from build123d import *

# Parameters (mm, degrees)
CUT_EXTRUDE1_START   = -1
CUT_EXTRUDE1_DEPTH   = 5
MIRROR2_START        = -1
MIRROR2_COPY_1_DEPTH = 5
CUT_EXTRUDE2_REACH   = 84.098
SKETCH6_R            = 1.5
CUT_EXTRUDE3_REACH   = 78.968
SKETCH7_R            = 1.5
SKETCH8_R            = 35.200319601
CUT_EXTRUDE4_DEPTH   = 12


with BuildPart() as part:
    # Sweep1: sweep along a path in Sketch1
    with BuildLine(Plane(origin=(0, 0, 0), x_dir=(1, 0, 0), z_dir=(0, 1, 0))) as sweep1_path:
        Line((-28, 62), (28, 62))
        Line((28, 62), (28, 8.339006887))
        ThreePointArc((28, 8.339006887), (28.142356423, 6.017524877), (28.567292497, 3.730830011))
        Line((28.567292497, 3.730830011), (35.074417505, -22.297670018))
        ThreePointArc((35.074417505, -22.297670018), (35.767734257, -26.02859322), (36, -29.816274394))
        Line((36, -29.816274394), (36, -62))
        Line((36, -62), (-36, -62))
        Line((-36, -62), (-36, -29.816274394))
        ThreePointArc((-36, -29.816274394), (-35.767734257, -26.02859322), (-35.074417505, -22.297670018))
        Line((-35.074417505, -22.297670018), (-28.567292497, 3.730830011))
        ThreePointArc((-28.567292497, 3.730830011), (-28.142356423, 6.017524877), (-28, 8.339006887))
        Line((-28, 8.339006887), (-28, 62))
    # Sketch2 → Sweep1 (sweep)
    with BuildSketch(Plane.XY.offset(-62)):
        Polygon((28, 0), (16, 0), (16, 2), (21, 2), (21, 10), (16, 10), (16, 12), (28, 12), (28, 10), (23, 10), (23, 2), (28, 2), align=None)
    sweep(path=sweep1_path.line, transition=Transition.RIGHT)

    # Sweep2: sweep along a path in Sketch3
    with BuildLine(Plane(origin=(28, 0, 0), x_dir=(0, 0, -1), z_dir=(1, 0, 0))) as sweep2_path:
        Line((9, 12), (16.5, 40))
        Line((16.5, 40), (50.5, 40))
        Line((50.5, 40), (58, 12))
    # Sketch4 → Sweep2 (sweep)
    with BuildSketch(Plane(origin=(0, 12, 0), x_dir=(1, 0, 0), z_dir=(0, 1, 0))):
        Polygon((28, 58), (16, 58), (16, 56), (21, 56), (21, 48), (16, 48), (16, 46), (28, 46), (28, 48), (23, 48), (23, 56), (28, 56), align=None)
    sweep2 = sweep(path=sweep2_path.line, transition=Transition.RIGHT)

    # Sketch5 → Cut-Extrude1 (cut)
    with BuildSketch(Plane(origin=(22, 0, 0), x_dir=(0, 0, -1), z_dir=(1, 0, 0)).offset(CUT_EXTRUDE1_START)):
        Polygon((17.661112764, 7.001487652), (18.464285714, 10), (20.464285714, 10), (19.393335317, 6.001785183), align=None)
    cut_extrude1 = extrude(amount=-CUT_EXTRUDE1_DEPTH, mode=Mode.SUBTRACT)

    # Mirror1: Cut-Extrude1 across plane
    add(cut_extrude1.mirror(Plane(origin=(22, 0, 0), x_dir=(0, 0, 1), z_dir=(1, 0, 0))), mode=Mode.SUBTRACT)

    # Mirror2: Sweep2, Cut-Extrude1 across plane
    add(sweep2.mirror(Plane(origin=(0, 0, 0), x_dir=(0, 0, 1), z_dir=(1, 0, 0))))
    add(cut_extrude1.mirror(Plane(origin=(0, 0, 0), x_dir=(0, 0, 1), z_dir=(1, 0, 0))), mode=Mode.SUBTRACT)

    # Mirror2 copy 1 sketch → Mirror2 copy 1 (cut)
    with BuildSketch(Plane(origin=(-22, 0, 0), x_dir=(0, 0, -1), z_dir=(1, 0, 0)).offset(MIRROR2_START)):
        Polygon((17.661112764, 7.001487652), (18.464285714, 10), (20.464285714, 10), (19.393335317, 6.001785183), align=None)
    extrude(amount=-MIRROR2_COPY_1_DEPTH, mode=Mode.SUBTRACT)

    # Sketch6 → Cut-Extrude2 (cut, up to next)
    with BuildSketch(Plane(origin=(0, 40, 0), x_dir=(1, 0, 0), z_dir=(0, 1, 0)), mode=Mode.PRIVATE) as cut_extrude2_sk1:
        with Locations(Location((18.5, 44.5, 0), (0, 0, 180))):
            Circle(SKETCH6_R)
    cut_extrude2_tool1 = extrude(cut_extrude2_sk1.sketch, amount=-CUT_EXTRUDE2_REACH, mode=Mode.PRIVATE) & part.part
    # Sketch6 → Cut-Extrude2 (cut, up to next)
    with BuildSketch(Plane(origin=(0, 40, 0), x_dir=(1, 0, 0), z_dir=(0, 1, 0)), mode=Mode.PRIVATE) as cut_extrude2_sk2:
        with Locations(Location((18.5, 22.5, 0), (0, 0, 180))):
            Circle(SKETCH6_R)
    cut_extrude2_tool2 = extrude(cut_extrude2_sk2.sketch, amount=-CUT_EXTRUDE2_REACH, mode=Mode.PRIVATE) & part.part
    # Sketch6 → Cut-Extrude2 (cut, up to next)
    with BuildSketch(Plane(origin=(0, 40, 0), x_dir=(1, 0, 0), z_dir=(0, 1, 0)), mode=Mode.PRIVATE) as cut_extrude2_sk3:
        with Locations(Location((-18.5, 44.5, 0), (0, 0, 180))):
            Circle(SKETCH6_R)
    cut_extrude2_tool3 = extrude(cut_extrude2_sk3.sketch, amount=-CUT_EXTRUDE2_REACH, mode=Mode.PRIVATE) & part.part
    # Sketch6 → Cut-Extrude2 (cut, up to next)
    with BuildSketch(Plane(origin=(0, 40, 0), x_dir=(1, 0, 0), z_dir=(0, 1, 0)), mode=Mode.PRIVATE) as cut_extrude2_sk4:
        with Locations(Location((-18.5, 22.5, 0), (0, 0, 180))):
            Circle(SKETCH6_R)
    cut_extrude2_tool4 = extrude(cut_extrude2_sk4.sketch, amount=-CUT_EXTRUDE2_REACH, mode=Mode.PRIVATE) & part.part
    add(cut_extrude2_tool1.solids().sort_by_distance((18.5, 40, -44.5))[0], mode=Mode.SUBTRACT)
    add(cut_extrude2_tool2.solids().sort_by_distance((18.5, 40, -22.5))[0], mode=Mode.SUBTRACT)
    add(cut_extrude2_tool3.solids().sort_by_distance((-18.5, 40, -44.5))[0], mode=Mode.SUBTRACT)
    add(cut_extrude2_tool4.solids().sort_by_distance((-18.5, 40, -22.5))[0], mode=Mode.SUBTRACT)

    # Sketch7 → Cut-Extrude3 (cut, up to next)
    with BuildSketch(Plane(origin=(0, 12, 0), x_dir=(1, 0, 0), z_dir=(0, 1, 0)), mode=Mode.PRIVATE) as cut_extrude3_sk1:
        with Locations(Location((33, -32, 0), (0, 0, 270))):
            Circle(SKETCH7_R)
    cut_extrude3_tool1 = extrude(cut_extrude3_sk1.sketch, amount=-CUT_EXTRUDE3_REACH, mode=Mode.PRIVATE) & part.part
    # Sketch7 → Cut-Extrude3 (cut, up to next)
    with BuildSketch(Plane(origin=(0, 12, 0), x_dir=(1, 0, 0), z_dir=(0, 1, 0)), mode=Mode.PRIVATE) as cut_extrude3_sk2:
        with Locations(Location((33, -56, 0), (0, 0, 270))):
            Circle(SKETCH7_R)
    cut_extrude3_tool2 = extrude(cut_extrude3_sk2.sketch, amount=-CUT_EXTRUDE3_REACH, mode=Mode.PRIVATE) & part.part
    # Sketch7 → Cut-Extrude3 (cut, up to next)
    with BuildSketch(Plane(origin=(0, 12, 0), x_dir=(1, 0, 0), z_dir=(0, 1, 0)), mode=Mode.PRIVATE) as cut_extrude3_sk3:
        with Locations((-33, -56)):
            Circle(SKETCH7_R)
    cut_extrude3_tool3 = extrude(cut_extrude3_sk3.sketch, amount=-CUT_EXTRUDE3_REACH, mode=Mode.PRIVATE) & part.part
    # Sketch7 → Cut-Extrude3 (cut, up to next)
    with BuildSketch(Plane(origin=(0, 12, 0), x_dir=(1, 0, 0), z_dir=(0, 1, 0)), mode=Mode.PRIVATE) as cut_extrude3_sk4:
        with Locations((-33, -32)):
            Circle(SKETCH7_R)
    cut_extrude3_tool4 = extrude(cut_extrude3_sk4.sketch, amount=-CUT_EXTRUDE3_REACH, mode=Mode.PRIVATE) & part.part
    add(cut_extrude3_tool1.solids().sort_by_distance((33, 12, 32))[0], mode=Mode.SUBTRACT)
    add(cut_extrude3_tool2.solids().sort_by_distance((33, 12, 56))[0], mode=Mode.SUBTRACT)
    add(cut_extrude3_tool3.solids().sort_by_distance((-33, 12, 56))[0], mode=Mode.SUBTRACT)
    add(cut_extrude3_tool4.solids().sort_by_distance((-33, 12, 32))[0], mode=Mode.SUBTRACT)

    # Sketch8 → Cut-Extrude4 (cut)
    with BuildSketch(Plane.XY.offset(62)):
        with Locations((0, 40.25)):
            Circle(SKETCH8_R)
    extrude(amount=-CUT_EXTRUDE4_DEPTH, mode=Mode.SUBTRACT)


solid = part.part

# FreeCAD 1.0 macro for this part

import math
import FreeCAD as App
import Part
import Sketcher
Q = App.Units.Quantity

doc = App.newDocument("Part")
body = doc.addObject("PartDesign::Body", "Body")

sketch1 = body.newObject("Sketcher::SketchObject", "Sketch")
sketch1.AttachmentSupport = (doc.getObject("XY_Plane"), [""])
sketch1.MapMode = "FlatFace"
sketch1.AttachmentOffset = App.Placement(App.Vector(0, 0, -62), App.Rotation())
sketch1.addGeometry([
    Part.LineSegment(App.Vector(16, 0, 0), App.Vector(28, 0, 0)),
    Part.LineSegment(App.Vector(28, 0, 0), App.Vector(28, 2, 0)),
    Part.LineSegment(App.Vector(28, 2, 0), App.Vector(23, 2, 0)),
    Part.LineSegment(App.Vector(23, 2, 0), App.Vector(23, 10, 0)),
    Part.LineSegment(App.Vector(23, 10, 0), App.Vector(28, 10, 0)),
    Part.LineSegment(App.Vector(28, 10, 0), App.Vector(28, 12, 0)),
    Part.LineSegment(App.Vector(28, 12, 0), App.Vector(16, 12, 0)),
    Part.LineSegment(App.Vector(16, 12, 0), App.Vector(16, 10, 0)),
    Part.LineSegment(App.Vector(16, 10, 0), App.Vector(21, 10, 0)),
    Part.LineSegment(App.Vector(21, 10, 0), App.Vector(21, 2, 0)),
    Part.LineSegment(App.Vector(21, 2, 0), App.Vector(16, 2, 0)),
    Part.LineSegment(App.Vector(16, 2, 0), App.Vector(16, 0, 0)),
], False)
sketch1.addConstraint([
    Sketcher.Constraint("Coincident", 0, 2, 1, 1),
    Sketcher.Constraint("Coincident", 1, 2, 2, 1),
    Sketcher.Constraint("Coincident", 2, 2, 3, 1),
    Sketcher.Constraint("Coincident", 3, 2, 4, 1),
    Sketcher.Constraint("Coincident", 4, 2, 5, 1),
    Sketcher.Constraint("Coincident", 5, 2, 6, 1),
    Sketcher.Constraint("Coincident", 6, 2, 7, 1),
    Sketcher.Constraint("Coincident", 7, 2, 8, 1),
    Sketcher.Constraint("Coincident", 8, 2, 9, 1),
    Sketcher.Constraint("Coincident", 9, 2, 10, 1),
    Sketcher.Constraint("Coincident", 10, 2, 11, 1),
    Sketcher.Constraint("Coincident", 11, 2, 0, 1),
    Sketcher.Constraint("Horizontal", 0),
    Sketcher.Constraint("Vertical", 1),
    Sketcher.Constraint("Horizontal", 2),
    Sketcher.Constraint("Vertical", 3),
    Sketcher.Constraint("Horizontal", 4),
    Sketcher.Constraint("Vertical", 5),
    Sketcher.Constraint("Horizontal", 6),
    Sketcher.Constraint("Vertical", 7),
    Sketcher.Constraint("Horizontal", 8),
    Sketcher.Constraint("Vertical", 9),
    Sketcher.Constraint("Horizontal", 10),
    Sketcher.Constraint("Vertical", 11),
    Sketcher.Constraint("PointOnObject", 0, 2, -1),
    Sketcher.Constraint("Horizontal", 4, 2, 7, 2),
    Sketcher.Constraint("Horizontal", 2, 2, 9, 2),
    Sketcher.Constraint("Vertical", 1, 2, 4, 2),
    Sketcher.Constraint("Vertical", 7, 2, 10, 2),
    Sketcher.Constraint("Equal", 4, 8),
    Sketcher.Constraint("Equal", 1, 5),
    Sketcher.Constraint("DistanceX", 0, 1, 0, 2, Q("12 mm")),
    Sketcher.Constraint("DistanceX", 2, 2, 2, 1, Q("5 mm")),
    Sketcher.Constraint("DistanceY", 1, 1, 1, 2, Q("2 mm")),
    Sketcher.Constraint("DistanceY", 3, 1, 3, 2, Q("8 mm")),
    Sketcher.Constraint("DistanceX", -1, 1, 0, 2, Q("28 mm")),
])

sketch2 = body.newObject("Sketcher::SketchObject", "Sketch001")
sketch2.AttachmentSupport = (doc.getObject("XZ_Plane"), [""])
sketch2.MapMode = "FlatFace"
sketch2.addGeometry([
    Part.LineSegment(App.Vector(-28, -62, 0), App.Vector(28, -62, 0)),
    Part.LineSegment(App.Vector(28, -62, 0), App.Vector(28, -8.3, 0)),
    Part.ArcOfCircle(Part.Circle(App.Vector(47, -8.3, 0), App.Vector(0, 0, 1), 19), math.radians(165.96), math.radians(180)),
    Part.LineSegment(App.Vector(28.6, -3.7, 0), App.Vector(35.1, 22.3, 0)),
    Part.ArcOfCircle(Part.Circle(App.Vector(5, 29.8, 0), App.Vector(0, 0, 1), 31), math.radians(-14.04), math.radians(0)),
    Part.LineSegment(App.Vector(36, 29.8, 0), App.Vector(36, 62, 0)),
    Part.LineSegment(App.Vector(36, 62, 0), App.Vector(-36, 62, 0)),
    Part.LineSegment(App.Vector(-36, 62, 0), App.Vector(-36, 29.8, 0)),
    Part.ArcOfCircle(Part.Circle(App.Vector(-5, 29.8, 0), App.Vector(0, 0, 1), 31), math.radians(-180), math.radians(-165.96)),
    Part.LineSegment(App.Vector(-35.1, 22.3, 0), App.Vector(-28.6, -3.7, 0)),
    Part.ArcOfCircle(Part.Circle(App.Vector(-47, -8.3, 0), App.Vector(0, 0, 1), 19), math.radians(0), math.radians(14.04)),
    Part.LineSegment(App.Vector(-28, -8.3, 0), App.Vector(-28, -62, 0)),
], False)
sketch2.addConstraint([
    Sketcher.Constraint("Coincident", 0, 2, 1, 1),
    Sketcher.Constraint("Tangent", 1, 2, 2, 2),
    Sketcher.Constraint("Tangent", 2, 1, 3, 1),
    Sketcher.Constraint("Tangent", 3, 2, 4, 1),
    Sketcher.Constraint("Tangent", 4, 2, 5, 1),
    Sketcher.Constraint("Coincident", 5, 2, 6, 1),
    Sketcher.Constraint("Coincident", 6, 2, 7, 1),
    Sketcher.Constraint("Tangent", 7, 2, 8, 1),
    Sketcher.Constraint("Tangent", 8, 2, 9, 1),
    Sketcher.Constraint("Tangent", 9, 2, 10, 2),
    Sketcher.Constraint("Tangent", 10, 1, 11, 1),
    Sketcher.Constraint("Coincident", 11, 2, 0, 1),
    Sketcher.Constraint("Horizontal", 0),
    Sketcher.Constraint("Vertical", 1),
    Sketcher.Constraint("Vertical", 5),
    Sketcher.Constraint("Horizontal", 6),
    Sketcher.Constraint("Vertical", 7),
    Sketcher.Constraint("Vertical", 11),
    Sketcher.Constraint("Equal", 4, 8),
    Sketcher.Constraint("Equal", 2, 10),
    Sketcher.Constraint("Symmetric", 4, 3, 8, 3, -2),
    Sketcher.Constraint("Symmetric", 2, 3, 10, 3, -2),
    Sketcher.Constraint("Radius", 2, Q("19 mm")),
    Sketcher.Constraint("Radius", 4, Q("31 mm")),
    Sketcher.Constraint("DistanceX", 0, 1, 0, 2, Q("56 mm")),
    Sketcher.Constraint("DistanceX", 6, 2, 6, 1, Q("72 mm")),
    Sketcher.Constraint("DistanceY", 0, 2, -1, 1, Q("62 mm")),
    Sketcher.Constraint("DistanceY", -1, 1, 5, 2, Q("62 mm")),
    Sketcher.Constraint("DistanceY", 2, 1, 3, 2, Q("26.0285 mm")),
    Sketcher.Constraint("DistanceY", 1, 1, 1, 2, Q("53.660993 mm")),
])
doc.recompute()

additivepipe = body.newObject("PartDesign::AdditivePipe", "AdditivePipe")
additivepipe.Profile = sketch1
additivepipe.Spine = (sketch2, ["Edge1", "Edge2", "Edge3", "Edge4", "Edge5", "Edge6", "Edge7", "Edge8", "Edge9", "Edge10", "Edge11", "Edge12"])
additivepipe.Transition = "Right corner"

sketch3 = body.newObject("Sketcher::SketchObject", "Sketch002")
sketch3.AttachmentSupport = (doc.getObject("XZ_Plane"), [""])
sketch3.MapMode = "FlatFace"
sketch3.AttachmentOffset = App.Placement(App.Vector(0, 0, -12), App.Rotation())
sketch3.addGeometry([
    Part.LineSegment(App.Vector(28, -58, 0), App.Vector(16, -58, 0)),
    Part.LineSegment(App.Vector(16, -58, 0), App.Vector(16, -56, 0)),
    Part.LineSegment(App.Vector(16, -56, 0), App.Vector(21, -56, 0)),
    Part.LineSegment(App.Vector(21, -56, 0), App.Vector(21, -48, 0)),
    Part.LineSegment(App.Vector(21, -48, 0), App.Vector(16, -48, 0)),
    Part.LineSegment(App.Vector(16, -48, 0), App.Vector(16, -46, 0)),
    Part.LineSegment(App.Vector(16, -46, 0), App.Vector(28, -46, 0)),
    Part.LineSegment(App.Vector(28, -46, 0), App.Vector(28, -48, 0)),
    Part.LineSegment(App.Vector(28, -48, 0), App.Vector(23, -48, 0)),
    Part.LineSegment(App.Vector(23, -48, 0), App.Vector(23, -56, 0)),
    Part.LineSegment(App.Vector(23, -56, 0), App.Vector(28, -56, 0)),
    Part.LineSegment(App.Vector(28, -56, 0), App.Vector(28, -58, 0)),
], False)
sketch3.addConstraint([
    Sketcher.Constraint("Coincident", 0, 2, 1, 1),
    Sketcher.Constraint("Coincident", 1, 2, 2, 1),
    Sketcher.Constraint("Coincident", 2, 2, 3, 1),
    Sketcher.Constraint("Coincident", 3, 2, 4, 1),
    Sketcher.Constraint("Coincident", 4, 2, 5, 1),
    Sketcher.Constraint("Coincident", 5, 2, 6, 1),
    Sketcher.Constraint("Coincident", 6, 2, 7, 1),
    Sketcher.Constraint("Coincident", 7, 2, 8, 1),
    Sketcher.Constraint("Coincident", 8, 2, 9, 1),
    Sketcher.Constraint("Coincident", 9, 2, 10, 1),
    Sketcher.Constraint("Coincident", 10, 2, 11, 1),
    Sketcher.Constraint("Coincident", 11, 2, 0, 1),
    Sketcher.Constraint("Horizontal", 0),
    Sketcher.Constraint("Vertical", 1),
    Sketcher.Constraint("Horizontal", 2),
    Sketcher.Constraint("Vertical", 3),
    Sketcher.Constraint("Horizontal", 4),
    Sketcher.Constraint("Vertical", 5),
    Sketcher.Constraint("Horizontal", 6),
    Sketcher.Constraint("Vertical", 7),
    Sketcher.Constraint("Horizontal", 8),
    Sketcher.Constraint("Vertical", 9),
    Sketcher.Constraint("Horizontal", 10),
    Sketcher.Constraint("Vertical", 11),
    Sketcher.Constraint("Horizontal", 4, 2, 7, 2),
    Sketcher.Constraint("Horizontal", 2, 2, 9, 2),
    Sketcher.Constraint("Vertical", 1, 2, 4, 2),
    Sketcher.Constraint("Vertical", 7, 2, 10, 2),
    Sketcher.Constraint("Equal", 4, 8),
    Sketcher.Constraint("Equal", 1, 5),
    Sketcher.Constraint("DistanceX", 0, 2, 0, 1, Q("12 mm")),
    Sketcher.Constraint("DistanceX", 2, 1, 2, 2, Q("5 mm")),
    Sketcher.Constraint("DistanceY", 1, 1, 1, 2, Q("2 mm")),
    Sketcher.Constraint("DistanceY", 3, 1, 3, 2, Q("8 mm")),
    Sketcher.Constraint("DistanceX", -1, 1, 0, 2, Q("16 mm")),
    Sketcher.Constraint("DistanceY", 0, 2, -1, 1, Q("58 mm")),
])

sketch4 = body.newObject("Sketcher::SketchObject", "Sketch003")
sketch4.AttachmentSupport = (doc.getObject("YZ_Plane"), [""])
sketch4.MapMode = "FlatFace"
sketch4.AttachmentOffset = App.Placement(App.Vector(0, 0, 28), App.Rotation())
sketch4.addGeometry([
    Part.LineSegment(App.Vector(12, -9, 0), App.Vector(40, -16, 0)),
    Part.LineSegment(App.Vector(40, -16, 0), App.Vector(40, -50, 0)),
    Part.LineSegment(App.Vector(40, -50, 0), App.Vector(12, -58, 0)),
], False)
sketch4.addConstraint([
    Sketcher.Constraint("Coincident", 0, 2, 1, 1),
    Sketcher.Constraint("Coincident", 1, 2, 2, 1),
    Sketcher.Constraint("Vertical", 1),
    Sketcher.Constraint("Vertical", 0, 1, 2, 2),
    Sketcher.Constraint("Equal", 0, 2),
    Sketcher.Constraint("DistanceY", 1, 2, 1, 1, Q("34 mm")),
    Sketcher.Constraint("DistanceX", -1, 1, 0, 1, Q("12 mm")),
    Sketcher.Constraint("DistanceY", 0, 1, -1, 1, Q("9 mm")),
    Sketcher.Constraint("DistanceX", -1, 1, 0, 2, Q("40 mm")),
    Sketcher.Constraint("DistanceY", 2, 2, -1, 1, Q("58 mm")),
])
doc.recompute()

additivepipe2 = body.newObject("PartDesign::AdditivePipe", "AdditivePipe001")
additivepipe2.Profile = sketch3
additivepipe2.Spine = (sketch4, ["Edge1", "Edge2", "Edge3"])
additivepipe2.Transition = "Right corner"

sketch5 = body.newObject("Sketcher::SketchObject", "Sketch004")
sketch5.AttachmentSupport = (doc.getObject("YZ_Plane"), [""])
sketch5.MapMode = "FlatFace"
sketch5.AttachmentOffset = App.Placement(App.Vector(0, 0, 21), App.Rotation())
sketch5.addGeometry([
    Part.LineSegment(App.Vector(10, -18.5, 0), App.Vector(7, -17.7, 0)),
    Part.LineSegment(App.Vector(7, -17.7, 0), App.Vector(6, -19.4, 0)),
    Part.LineSegment(App.Vector(6, -19.4, 0), App.Vector(10, -20.5, 0)),
    Part.LineSegment(App.Vector(10, -20.5, 0), App.Vector(10, -18.5, 0)),
], False)
sketch5.addConstraint([
    Sketcher.Constraint("Coincident", 0, 2, 1, 1),
    Sketcher.Constraint("Coincident", 1, 2, 2, 1),
    Sketcher.Constraint("Coincident", 2, 2, 3, 1),
    Sketcher.Constraint("Coincident", 3, 2, 0, 1),
    Sketcher.Constraint("Vertical", 3),
    Sketcher.Constraint("Parallel", 0, 2),
    Sketcher.Constraint("DistanceY", 3, 1, 3, 2, Q("2 mm")),
    Sketcher.Constraint("Distance", 1, Q("2 mm")),
    Sketcher.Constraint("DistanceX", -1, 1, 2, 2, Q("10 mm")),
    Sketcher.Constraint("Distance", 2, Q("4.139161 mm")),
    Sketcher.Constraint("DistanceY", 2, 2, 1, 2, Q("1.07095 mm")),
    Sketcher.Constraint("DistanceY", 0, 2, -1, 1, Q("17.661113 mm")),
])
pocket1 = body.newObject("PartDesign::Pocket", "Pocket")
pocket1.Profile = sketch5
pocket1.Length = 5
doc.recompute()

datumplane = body.newObject("PartDesign::Plane", "DatumPlane")
datumplane.AttachmentSupport = (doc.getObject("YZ_Plane"), [""])
datumplane.MapMode = "FlatFace"
datumplane.AttachmentOffset = App.Placement(App.Vector(0, 0, 22), App.Rotation())
mirrored = body.newObject("PartDesign::Mirrored", "Mirrored")
mirrored.Originals = [pocket1]
mirrored.MirrorPlane = (datumplane, [""])
body.Tip = mirrored
doc.recompute()

mirrored2 = body.newObject("PartDesign::Mirrored", "Mirrored001")
mirrored2.Originals = [additivepipe2, pocket1]
mirrored2.MirrorPlane = (doc.getObject("YZ_Plane"), [""])
body.Tip = mirrored2

sketch6 = body.newObject("Sketcher::SketchObject", "Sketch005")
sketch6.AttachmentSupport = (doc.getObject("YZ_Plane"), [""])
sketch6.MapMode = "FlatFace"
sketch6.AttachmentOffset = App.Placement(App.Vector(0, 0, -23), App.Rotation())
sketch6.addGeometry([
    Part.LineSegment(App.Vector(10, -18.5, 0), App.Vector(7, -17.7, 0)),
    Part.LineSegment(App.Vector(7, -17.7, 0), App.Vector(6, -19.4, 0)),
    Part.LineSegment(App.Vector(6, -19.4, 0), App.Vector(10, -20.5, 0)),
    Part.LineSegment(App.Vector(10, -20.5, 0), App.Vector(10, -18.5, 0)),
], False)
sketch6.addConstraint([
    Sketcher.Constraint("Coincident", 0, 2, 1, 1),
    Sketcher.Constraint("Coincident", 1, 2, 2, 1),
    Sketcher.Constraint("Coincident", 2, 2, 3, 1),
    Sketcher.Constraint("Coincident", 3, 2, 0, 1),
    Sketcher.Constraint("Vertical", 3),
    Sketcher.Constraint("Parallel", 0, 2),
    Sketcher.Constraint("DistanceY", 3, 1, 3, 2, Q("2 mm")),
    Sketcher.Constraint("Distance", 1, Q("2 mm")),
    Sketcher.Constraint("DistanceX", -1, 1, 2, 2, Q("10 mm")),
    Sketcher.Constraint("Distance", 2, Q("4.139161 mm")),
    Sketcher.Constraint("DistanceY", 2, 2, 1, 2, Q("1.07095 mm")),
    Sketcher.Constraint("DistanceY", 0, 2, -1, 1, Q("17.661113 mm")),
])
pocket2 = body.newObject("PartDesign::Pocket", "Pocket001")
pocket2.Profile = sketch6
pocket2.Length = 5

sketch7 = body.newObject("Sketcher::SketchObject", "Sketch006")
sketch7.AttachmentSupport = (doc.getObject("XZ_Plane"), [""])
sketch7.MapMode = "FlatFace"
sketch7.AttachmentOffset = App.Placement(App.Vector(0, 0, -40), App.Rotation())
sketch7.addGeometry(Part.Circle(App.Vector(18.5, -44.5, 0), App.Vector(0, 0, 1), 1.5), False)
sketch7.addConstraint([
    Sketcher.Constraint("Diameter", 0, Q("3 mm")),
    Sketcher.Constraint("DistanceX", -1, 1, 0, 3, Q("18.5 mm")),
    Sketcher.Constraint("DistanceY", 0, 3, -1, 1, Q("44.5 mm")),
])
pocket3 = body.newObject("PartDesign::Pocket", "Pocket002")
pocket3.Profile = sketch7
pocket3.Type = "UpToFirst"
pocket3.Reversed = True

sketch8 = body.newObject("Sketcher::SketchObject", "Sketch007")
sketch8.AttachmentSupport = (doc.getObject("XZ_Plane"), [""])
sketch8.MapMode = "FlatFace"
sketch8.AttachmentOffset = App.Placement(App.Vector(0, 0, -40), App.Rotation())
sketch8.addGeometry(Part.Circle(App.Vector(18.5, -22.5, 0), App.Vector(0, 0, 1), 1.5), False)
sketch8.addConstraint([
    Sketcher.Constraint("Diameter", 0, Q("3 mm")),
    Sketcher.Constraint("DistanceX", -1, 1, 0, 3, Q("18.5 mm")),
    Sketcher.Constraint("DistanceY", 0, 3, -1, 1, Q("22.5 mm")),
])
pocket4 = body.newObject("PartDesign::Pocket", "Pocket003")
pocket4.Profile = sketch8
pocket4.Type = "UpToFirst"
pocket4.Reversed = True

sketch9 = body.newObject("Sketcher::SketchObject", "Sketch008")
sketch9.AttachmentSupport = (doc.getObject("XZ_Plane"), [""])
sketch9.MapMode = "FlatFace"
sketch9.AttachmentOffset = App.Placement(App.Vector(0, 0, -40), App.Rotation())
sketch9.addGeometry(Part.Circle(App.Vector(-18.5, -44.5, 0), App.Vector(0, 0, 1), 1.5), False)
sketch9.addConstraint([
    Sketcher.Constraint("Diameter", 0, Q("3 mm")),
    Sketcher.Constraint("DistanceX", 0, 3, -1, 1, Q("18.5 mm")),
    Sketcher.Constraint("DistanceY", 0, 3, -1, 1, Q("44.5 mm")),
])
pocket5 = body.newObject("PartDesign::Pocket", "Pocket004")
pocket5.Profile = sketch9
pocket5.Type = "UpToFirst"
pocket5.Reversed = True

sketch10 = body.newObject("Sketcher::SketchObject", "Sketch009")
sketch10.AttachmentSupport = (doc.getObject("XZ_Plane"), [""])
sketch10.MapMode = "FlatFace"
sketch10.AttachmentOffset = App.Placement(App.Vector(0, 0, -40), App.Rotation())
sketch10.addGeometry(Part.Circle(App.Vector(-18.5, -22.5, 0), App.Vector(0, 0, 1), 1.5), False)
sketch10.addConstraint([
    Sketcher.Constraint("Diameter", 0, Q("3 mm")),
    Sketcher.Constraint("DistanceX", 0, 3, -1, 1, Q("18.5 mm")),
    Sketcher.Constraint("DistanceY", 0, 3, -1, 1, Q("22.5 mm")),
])
pocket6 = body.newObject("PartDesign::Pocket", "Pocket005")
pocket6.Profile = sketch10
pocket6.Type = "UpToFirst"
pocket6.Reversed = True

sketch11 = body.newObject("Sketcher::SketchObject", "Sketch010")
sketch11.AttachmentSupport = (doc.getObject("XZ_Plane"), [""])
sketch11.MapMode = "FlatFace"
sketch11.AttachmentOffset = App.Placement(App.Vector(0, 0, -12), App.Rotation())
sketch11.addGeometry(Part.Circle(App.Vector(33, 32, 0), App.Vector(0, 0, 1), 1.5), False)
sketch11.addConstraint([
    Sketcher.Constraint("Diameter", 0, Q("3 mm")),
    Sketcher.Constraint("DistanceX", -1, 1, 0, 3, Q("33 mm")),
    Sketcher.Constraint("DistanceY", -1, 1, 0, 3, Q("32 mm")),
])
pocket7 = body.newObject("PartDesign::Pocket", "Pocket006")
pocket7.Profile = sketch11
pocket7.Type = "UpToFirst"
pocket7.Reversed = True

sketch12 = body.newObject("Sketcher::SketchObject", "Sketch011")
sketch12.AttachmentSupport = (doc.getObject("XZ_Plane"), [""])
sketch12.MapMode = "FlatFace"
sketch12.AttachmentOffset = App.Placement(App.Vector(0, 0, -12), App.Rotation())
sketch12.addGeometry(Part.Circle(App.Vector(33, 56, 0), App.Vector(0, 0, 1), 1.5), False)
sketch12.addConstraint([
    Sketcher.Constraint("Diameter", 0, Q("3 mm")),
    Sketcher.Constraint("DistanceX", -1, 1, 0, 3, Q("33 mm")),
    Sketcher.Constraint("DistanceY", -1, 1, 0, 3, Q("56 mm")),
])
pocket8 = body.newObject("PartDesign::Pocket", "Pocket007")
pocket8.Profile = sketch12
pocket8.Type = "UpToFirst"
pocket8.Reversed = True

sketch13 = body.newObject("Sketcher::SketchObject", "Sketch012")
sketch13.AttachmentSupport = (doc.getObject("XZ_Plane"), [""])
sketch13.MapMode = "FlatFace"
sketch13.AttachmentOffset = App.Placement(App.Vector(0, 0, -12), App.Rotation())
sketch13.addGeometry(Part.Circle(App.Vector(-33, 56, 0), App.Vector(0, 0, 1), 1.5), False)
sketch13.addConstraint([
    Sketcher.Constraint("Diameter", 0, Q("3 mm")),
    Sketcher.Constraint("DistanceX", 0, 3, -1, 1, Q("33 mm")),
    Sketcher.Constraint("DistanceY", -1, 1, 0, 3, Q("56 mm")),
])
pocket9 = body.newObject("PartDesign::Pocket", "Pocket008")
pocket9.Profile = sketch13
pocket9.Type = "UpToFirst"
pocket9.Reversed = True

sketch14 = body.newObject("Sketcher::SketchObject", "Sketch013")
sketch14.AttachmentSupport = (doc.getObject("XZ_Plane"), [""])
sketch14.MapMode = "FlatFace"
sketch14.AttachmentOffset = App.Placement(App.Vector(0, 0, -12), App.Rotation())
sketch14.addGeometry(Part.Circle(App.Vector(-33, 32, 0), App.Vector(0, 0, 1), 1.5), False)
sketch14.addConstraint([
    Sketcher.Constraint("Diameter", 0, Q("3 mm")),
    Sketcher.Constraint("DistanceX", 0, 3, -1, 1, Q("33 mm")),
    Sketcher.Constraint("DistanceY", -1, 1, 0, 3, Q("32 mm")),
])
pocket10 = body.newObject("PartDesign::Pocket", "Pocket009")
pocket10.Profile = sketch14
pocket10.Type = "UpToFirst"
pocket10.Reversed = True

sketch15 = body.newObject("Sketcher::SketchObject", "Sketch014")
sketch15.AttachmentSupport = (doc.getObject("XY_Plane"), [""])
sketch15.MapMode = "FlatFace"
sketch15.AttachmentOffset = App.Placement(App.Vector(0, 0, 62), App.Rotation())
sketch15.addGeometry(Part.Circle(App.Vector(0, 40, 0), App.Vector(0, 0, 1), 35), False)
sketch15.addConstraint([
    Sketcher.Constraint("PointOnObject", 0, 3, -2),
    Sketcher.Constraint("Diameter", 0, Q("70.400639 mm")),
    Sketcher.Constraint("DistanceY", -1, 1, 0, 3, Q("40.25 mm")),
])
pocket11 = body.newObject("PartDesign::Pocket", "Pocket010")
pocket11.Profile = sketch15
pocket11.Length = 12

doc.recompute()
